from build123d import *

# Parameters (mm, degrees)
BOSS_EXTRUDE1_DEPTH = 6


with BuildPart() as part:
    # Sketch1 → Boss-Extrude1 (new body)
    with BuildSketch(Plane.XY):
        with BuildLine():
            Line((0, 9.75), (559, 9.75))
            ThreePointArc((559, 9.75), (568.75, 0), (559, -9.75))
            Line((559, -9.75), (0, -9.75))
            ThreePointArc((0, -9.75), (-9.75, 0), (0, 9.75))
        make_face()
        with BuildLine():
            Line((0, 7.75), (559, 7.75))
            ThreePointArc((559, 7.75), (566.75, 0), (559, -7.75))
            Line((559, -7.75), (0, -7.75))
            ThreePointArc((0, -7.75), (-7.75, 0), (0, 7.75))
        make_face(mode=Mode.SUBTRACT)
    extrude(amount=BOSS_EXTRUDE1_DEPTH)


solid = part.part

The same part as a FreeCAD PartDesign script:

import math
import FreeCAD as App
import Part
import Sketcher

doc = App.newDocument("Part")
body = doc.addObject("PartDesign::Body", "Body")

# Sketch on XY plane
sketch1 = body.newObject("Sketcher::SketchObject", "Sketch")
sketch1.AttachmentSupport = (doc.getObject("XY_Plane"), [""])
sketch1.MapMode = "FlatFace"
sketch1.addGeometry(Part.LineSegment(App.Vector(559, 10, 0), App.Vector(0, 10, 0)), False)
sketch1.addGeometry(Part.ArcOfCircle(Part.Circle(App.Vector(0, 0, 0), App.Vector(0, 0, 1), 10), math.radians(90), math.radians(270)), False)
sketch1.addGeometry(Part.LineSegment(App.Vector(0, -10, 0), App.Vector(559, -10, 0)), False)
sketch1.addGeometry(Part.ArcOfCircle(Part.Circle(App.Vector(559, 0, 0), App.Vector(0, 0, 1), 10), math.radians(-90), math.radians(90)), False)
sketch1.addGeometry(Part.LineSegment(App.Vector(0, 8, 0), App.Vector(559, 8, 0)), False)
sketch1.addGeometry(Part.ArcOfCircle(Part.Circle(App.Vector(559, 0, 0), App.Vector(0, 0, 1), 8), math.radians(-90), math.radians(90)), False)
sketch1.addGeometry(Part.LineSegment(App.Vector(559, -8, 0), App.Vector(0, -8, 0)), False)
sketch1.addGeometry(Part.ArcOfCircle(Part.Circle(App.Vector(0, 0, 0), App.Vector(0, 0, 1), 8), math.radians(90), math.radians(270)), False)
sketch1.addConstraint(Sketcher.Constraint("Tangent", 0, 2, 1, 1))
sketch1.addConstraint(Sketcher.Constraint("Tangent", 1, 2, 2, 1))
sketch1.addConstraint(Sketcher.Constraint("Tangent", 2, 2, 3, 1))
sketch1.addConstraint(Sketcher.Constraint("Tangent", 3, 2, 0, 1))
sketch1.addConstraint(Sketcher.Constraint("Tangent", 4, 2, 5, 2))
sketch1.addConstraint(Sketcher.Constraint("Tangent", 5, 1, 6, 1))
sketch1.addConstraint(Sketcher.Constraint("Tangent", 6, 2, 7, 2))
sketch1.addConstraint(Sketcher.Constraint("Tangent", 7, 1, 4, 1))
sketch1.addConstraint(Sketcher.Constraint("Horizontal", 0))
sketch1.addConstraint(Sketcher.Constraint("Horizontal", 2))
sketch1.addConstraint(Sketcher.Constraint("Horizontal", 4))
sketch1.addConstraint(Sketcher.Constraint("Horizontal", 6))
sketch1.addConstraint(Sketcher.Constraint("Coincident", 1, 3, -1, 1))
sketch1.addConstraint(Sketcher.Constraint("Coincident", 7, 3, -1, 1))
sketch1.addConstraint(Sketcher.Constraint("Vertical", 5, 3, 2, 2))
sketch1.addConstraint(Sketcher.Constraint("DistanceX", 0, 2, 0, 1, 559.0))
sketch1.addConstraint(Sketcher.Constraint("Radius", 1, 9.75))
sketch1.addConstraint(Sketcher.Constraint("Radius", 5, 7.75))
pad1 = body.newObject("PartDesign::Pad", "Pad")
pad1.Profile = sketch1
pad1.Length = 6

doc.recompute()
